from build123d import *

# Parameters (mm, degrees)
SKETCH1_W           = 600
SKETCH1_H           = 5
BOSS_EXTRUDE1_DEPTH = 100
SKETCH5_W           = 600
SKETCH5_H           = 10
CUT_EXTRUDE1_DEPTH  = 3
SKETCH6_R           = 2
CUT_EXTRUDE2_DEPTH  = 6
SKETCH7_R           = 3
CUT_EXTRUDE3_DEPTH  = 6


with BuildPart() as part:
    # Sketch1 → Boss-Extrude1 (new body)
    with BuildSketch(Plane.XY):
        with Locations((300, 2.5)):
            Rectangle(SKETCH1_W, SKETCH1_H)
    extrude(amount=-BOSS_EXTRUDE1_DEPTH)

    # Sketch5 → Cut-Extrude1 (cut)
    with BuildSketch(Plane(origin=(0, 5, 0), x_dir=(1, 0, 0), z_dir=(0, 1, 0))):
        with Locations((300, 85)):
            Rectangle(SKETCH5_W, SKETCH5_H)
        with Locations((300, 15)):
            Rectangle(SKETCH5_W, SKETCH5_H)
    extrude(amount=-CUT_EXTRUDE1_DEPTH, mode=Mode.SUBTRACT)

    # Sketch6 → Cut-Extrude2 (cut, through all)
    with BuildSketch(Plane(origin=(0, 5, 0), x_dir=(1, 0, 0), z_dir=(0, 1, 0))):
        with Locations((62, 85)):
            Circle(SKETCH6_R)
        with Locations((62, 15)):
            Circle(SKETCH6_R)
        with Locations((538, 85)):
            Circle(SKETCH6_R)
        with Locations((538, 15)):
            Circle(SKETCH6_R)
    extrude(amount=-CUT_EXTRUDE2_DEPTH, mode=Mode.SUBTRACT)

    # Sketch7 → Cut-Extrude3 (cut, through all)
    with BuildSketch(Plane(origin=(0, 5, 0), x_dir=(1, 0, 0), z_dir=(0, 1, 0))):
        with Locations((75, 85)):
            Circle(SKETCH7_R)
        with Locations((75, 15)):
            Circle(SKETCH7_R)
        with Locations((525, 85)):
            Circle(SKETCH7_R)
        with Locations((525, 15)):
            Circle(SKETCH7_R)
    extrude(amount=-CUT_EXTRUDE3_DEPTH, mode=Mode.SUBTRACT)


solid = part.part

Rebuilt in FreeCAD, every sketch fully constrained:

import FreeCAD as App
import Part
import Sketcher

V = App.Vector
Q = App.Units.Quantity


def add_polygon(sketch, points):
    """Adds a closed chain of lines whose ends are joined by coincident constraints."""
    first, n = sketch.GeometryCount, len(points)
    for a, b in zip(points, points[1:] + points[:1]):
        sketch.addGeometry(Part.LineSegment(App.Vector(*a, 0), App.Vector(*b, 0)), False)
    for i in range(n):
        sketch.addConstraint(Sketcher.Constraint("Coincident", first + i, 2, first + (i + 1) % n, 1))

doc = App.newDocument("Part")
params = doc.addObject("Spreadsheet::Sheet", "Params")
for row, (alias, value) in enumerate([
    ("sketch1_width", "600 mm"),
    ("sketch1_height", "5 mm"),
    ("pad1_length", "100 mm"),
    ("sketch2_width", "600 mm"),
    ("sketch2_height", "10 mm"),
    ("pocket1_length", "3 mm"),
    ("sketch3_diameter", "4 mm"),
    ("sketch4_diameter", "6 mm"),
], start=1):
    params.set(f"A{row}", alias)
    params.set(f"B{row}", "=" + value)
    params.setAlias(f"B{row}", alias)

body = doc.addObject("PartDesign::Body", "Body")

# Sketch on XY plane
sketch1 = doc.addObject("Sketcher::SketchObject", "Sketch")
body.addObject(sketch1)
sketch1.AttachmentSupport = (doc.XY_Plane, [""])
sketch1.MapMode = "FlatFace"
add_polygon(sketch1, [(0, 5), (0, 0), (600, 0), (600, 5)])  # lines 0-3
sketch1.addConstraint(Sketcher.Constraint("Vertical", 0))
sketch1.addConstraint(Sketcher.Constraint("Horizontal", 1))
sketch1.addConstraint(Sketcher.Constraint("Vertical", 2))
sketch1.addConstraint(Sketcher.Constraint("Horizontal", 3))
sketch1.addConstraint(Sketcher.Constraint("Coincident", 0, 2, -1, 1))
sketch1.addConstraint(Sketcher.Constraint("DistanceX", 1, 1, 1, 2, Q("600 mm")))
sketch1.addConstraint(Sketcher.Constraint("DistanceY", 0, 2, 0, 1, Q("5 mm")))
sketch1.setExpression("Constraints[9]", "Params.sketch1_width")
sketch1.setExpression("Constraints[10]", "Params.sketch1_height")
pad1 = doc.addObject("PartDesign::Pad", "Pad")
body.addObject(pad1)
pad1.Profile = sketch1
pad1.setExpression("Length", "Params.pad1_length")
pad1.Reversed = True

# Sketch on XZ plane
sketch2 = doc.addObject("Sketcher::SketchObject", "Sketch001")
body.addObject(sketch2)
sketch2.AttachmentSupport = (doc.XZ_Plane, [""])
sketch2.MapMode = "FlatFace"
sketch2.AttachmentOffset = App.Placement(V(0, 0, -5), App.Rotation())
add_polygon(sketch2, [(0, -90), (0, -80), (600, -80), (600, -90)])  # lines 0-3
add_polygon(sketch2, [(0, -20), (0, -10), (600, -10), (600, -20)])  # lines 4-7
sketch2.addConstraint(Sketcher.Constraint("Vertical", 0))
sketch2.addConstraint(Sketcher.Constraint("Horizontal", 1))
sketch2.addConstraint(Sketcher.Constraint("Vertical", 2))
sketch2.addConstraint(Sketcher.Constraint("Horizontal", 3))
sketch2.addConstraint(Sketcher.Constraint("Vertical", 4))
sketch2.addConstraint(Sketcher.Constraint("Horizontal", 5))
sketch2.addConstraint(Sketcher.Constraint("Vertical", 6))
sketch2.addConstraint(Sketcher.Constraint("Horizontal", 7))
sketch2.addConstraint(Sketcher.Constraint("PointOnObject", 0, 2, -2))
sketch2.addConstraint(Sketcher.Constraint("PointOnObject", 4, 2, -2))
sketch2.addConstraint(Sketcher.Constraint("Vertical", 2, 2, 5, 2))
sketch2.addConstraint(Sketcher.Constraint("Equal", 2, 4))
sketch2.addConstraint(Sketcher.Constraint("DistanceX", 1, 1, 1, 2, Q("600 mm")))
sketch2.addConstraint(Sketcher.Constraint("DistanceY", 0, 1, 0, 2, Q("10 mm")))
sketch2.addConstraint(Sketcher.Constraint("DistanceY", 0, 2, -1, 1, Q("80 mm")))
sketch2.addConstraint(Sketcher.Constraint("DistanceY", 4, 2, -1, 1, Q("10 mm")))
sketch2.setExpression("Constraints[20]", "Params.sketch2_width")
sketch2.setExpression("Constraints[21]", "Params.sketch2_height")
pocket1 = doc.addObject("PartDesign::Pocket", "Pocket")
body.addObject(pocket1)
pocket1.Profile = sketch2
pocket1.setExpression("Length", "Params.pocket1_length")
pocket1.Reversed = True

# Sketch on XZ plane
sketch3 = doc.addObject("Sketcher::SketchObject", "Sketch002")
body.addObject(sketch3)
sketch3.AttachmentSupport = (doc.XZ_Plane, [""])
sketch3.MapMode = "FlatFace"
sketch3.AttachmentOffset = App.Placement(V(0, 0, -5), App.Rotation())
sketch3.addGeometry(Part.Circle(V(62, -85, 0), V(0, 0, 1), 2), False)
sketch3.addGeometry(Part.Circle(V(62, -15, 0), V(0, 0, 1), 2), False)
sketch3.addGeometry(Part.Circle(V(538, -85, 0), V(0, 0, 1), 2), False)
sketch3.addGeometry(Part.Circle(V(538, -15, 0), V(0, 0, 1), 2), False)
sketch3.addConstraint(Sketcher.Constraint("Equal", 0, 1))
sketch3.addConstraint(Sketcher.Constraint("Equal", 1, 2))
sketch3.addConstraint(Sketcher.Constraint("Equal", 2, 3))
sketch3.addConstraint(Sketcher.Constraint("Horizontal", 0, 3, 2, 3))
sketch3.addConstraint(Sketcher.Constraint("Horizontal", 1, 3, 3, 3))
sketch3.addConstraint(Sketcher.Constraint("Vertical", 0, 3, 1, 3))
sketch3.addConstraint(Sketcher.Constraint("Vertical", 2, 3, 3, 3))
sketch3.addConstraint(Sketcher.Constraint("Diameter", 0, Q("4 mm")))
sketch3.addConstraint(Sketcher.Constraint("DistanceX", -1, 1, 0, 3, Q("62 mm")))
sketch3.addConstraint(Sketcher.Constraint("DistanceY", 0, 3, -1, 1, Q("85 mm")))
sketch3.addConstraint(Sketcher.Constraint("DistanceY", 1, 3, -1, 1, Q("15 mm")))
sketch3.addConstraint(Sketcher.Constraint("DistanceX", -1, 1, 2, 3, Q("538 mm")))
sketch3.setExpression("Constraints[7]", "Params.sketch3_diameter")
pocket2 = doc.addObject("PartDesign::Pocket", "Pocket001")
body.addObject(pocket2)
pocket2.Profile = sketch3
pocket2.Type = "ThroughAll"
pocket2.Reversed = True

# Sketch on XZ plane
sketch4 = doc.addObject("Sketcher::SketchObject", "Sketch003")
body.addObject(sketch4)
sketch4.AttachmentSupport = (doc.XZ_Plane, [""])
sketch4.MapMode = "FlatFace"
sketch4.AttachmentOffset = App.Placement(V(0, 0, -5), App.Rotation())
sketch4.addGeometry(Part.Circle(V(75, -85, 0), V(0, 0, 1), 3), False)
sketch4.addGeometry(Part.Circle(V(75, -15, 0), V(0, 0, 1), 3), False)
sketch4.addGeometry(Part.Circle(V(525, -85, 0), V(0, 0, 1), 3), False)
sketch4.addGeometry(Part.Circle(V(525, -15, 0), V(0, 0, 1), 3), False)
sketch4.addConstraint(Sketcher.Constraint("Equal", 0, 1))
sketch4.addConstraint(Sketcher.Constraint("Equal", 1, 2))
sketch4.addConstraint(Sketcher.Constraint("Equal", 2, 3))
sketch4.addConstraint(Sketcher.Constraint("Horizontal", 0, 3, 2, 3))
sketch4.addConstraint(Sketcher.Constraint("Horizontal", 1, 3, 3, 3))
sketch4.addConstraint(Sketcher.Constraint("Vertical", 0, 3, 1, 3))
sketch4.addConstraint(Sketcher.Constraint("Vertical", 2, 3, 3, 3))
sketch4.addConstraint(Sketcher.Constraint("Diameter", 0, Q("6 mm")))
sketch4.addConstraint(Sketcher.Constraint("DistanceX", -1, 1, 0, 3, Q("75 mm")))
sketch4.addConstraint(Sketcher.Constraint("DistanceY", 0, 3, -1, 1, Q("85 mm")))
sketch4.addConstraint(Sketcher.Constraint("DistanceY", 1, 3, -1, 1, Q("15 mm")))
sketch4.addConstraint(Sketcher.Constraint("DistanceX", -1, 1, 2, 3, Q("525 mm")))
sketch4.setExpression("Constraints[7]", "Params.sketch4_diameter")
pocket3 = doc.addObject("PartDesign::Pocket", "Pocket002")
body.addObject(pocket3)
pocket3.Profile = sketch4
pocket3.Type = "ThroughAll"
pocket3.Reversed = True

doc.recompute()
